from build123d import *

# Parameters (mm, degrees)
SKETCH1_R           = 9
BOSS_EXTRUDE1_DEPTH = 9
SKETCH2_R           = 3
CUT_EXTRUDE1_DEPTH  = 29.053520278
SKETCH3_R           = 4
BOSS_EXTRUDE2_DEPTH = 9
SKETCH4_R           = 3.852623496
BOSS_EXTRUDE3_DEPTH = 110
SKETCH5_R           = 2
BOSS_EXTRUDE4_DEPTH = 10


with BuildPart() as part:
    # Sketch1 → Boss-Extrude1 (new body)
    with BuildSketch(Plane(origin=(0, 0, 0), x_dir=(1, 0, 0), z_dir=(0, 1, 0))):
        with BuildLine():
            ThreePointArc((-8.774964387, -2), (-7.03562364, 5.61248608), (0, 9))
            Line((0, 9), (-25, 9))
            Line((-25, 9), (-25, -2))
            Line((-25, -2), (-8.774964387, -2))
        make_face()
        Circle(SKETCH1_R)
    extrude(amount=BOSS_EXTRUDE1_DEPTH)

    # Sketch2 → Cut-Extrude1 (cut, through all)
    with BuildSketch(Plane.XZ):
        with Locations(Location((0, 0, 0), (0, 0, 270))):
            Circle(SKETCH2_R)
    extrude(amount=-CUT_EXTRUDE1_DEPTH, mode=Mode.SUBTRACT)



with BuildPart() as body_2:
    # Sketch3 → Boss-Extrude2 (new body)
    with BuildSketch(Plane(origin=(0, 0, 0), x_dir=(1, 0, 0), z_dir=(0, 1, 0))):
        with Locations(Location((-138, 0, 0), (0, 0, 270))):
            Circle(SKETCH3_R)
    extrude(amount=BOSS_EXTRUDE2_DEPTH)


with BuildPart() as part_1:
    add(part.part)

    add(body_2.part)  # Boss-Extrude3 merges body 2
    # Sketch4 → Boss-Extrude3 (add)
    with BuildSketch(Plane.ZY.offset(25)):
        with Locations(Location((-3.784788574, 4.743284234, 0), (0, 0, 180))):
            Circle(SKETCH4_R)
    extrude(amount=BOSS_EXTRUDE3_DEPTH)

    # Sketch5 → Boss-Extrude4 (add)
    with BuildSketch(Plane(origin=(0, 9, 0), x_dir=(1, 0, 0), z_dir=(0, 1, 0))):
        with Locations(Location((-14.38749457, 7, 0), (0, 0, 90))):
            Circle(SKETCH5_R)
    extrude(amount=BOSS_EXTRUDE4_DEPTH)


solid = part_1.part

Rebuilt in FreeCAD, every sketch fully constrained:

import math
import FreeCAD as App
import Part
import Sketcher

V = App.Vector

doc = App.newDocument("Part")
body = doc.addObject("PartDesign::Body", "Body")

# Sketch on XZ plane
sketch1 = body.newObject("Sketcher::SketchObject", "Sketch")
sketch1.AttachmentSupport = (doc.getObject("XZ_Plane"), [""])
sketch1.MapMode = "FlatFace"
sketch1.addGeometry([
    Part.LineSegment(V(0, -9, 0), V(-25, -9, 0)),
    Part.LineSegment(V(-25, -9, 0), V(-25, 2, 0)),
    Part.LineSegment(V(-25, 2, 0), V(-8.774964, 2, 0)),
    Part.ArcOfCircle(Part.Circle(V(0, 0, 0), V(0, 0, 1), 9), math.radians(-90), math.radians(167.160412)),
], False)
sketch1.addConstraint([
    Sketcher.Constraint("Coincident", 0, 2, 1, 1),
    Sketcher.Constraint("Coincident", 1, 2, 2, 1),
    Sketcher.Constraint("Coincident", 2, 2, 3, 2),
    Sketcher.Constraint("Tangent", 3, 1, 0, 1),
    Sketcher.Constraint("Horizontal", 0),
    Sketcher.Constraint("Vertical", 1),
    Sketcher.Constraint("Horizontal", 2),
    Sketcher.Constraint("Coincident", 3, 3, -1, 1),
    Sketcher.Constraint("Radius", 3, 9.0),
    Sketcher.Constraint("DistanceX", 0, 2, 0, 1, 25.0),
    Sketcher.Constraint("DistanceY", 1, 1, 1, 2, 11.0),
])
pad1 = body.newObject("PartDesign::Pad", "Pad")
pad1.Profile = sketch1
pad1.Length = 9
pad1.Reversed = True

# Sketch on XZ plane
sketch2 = body.newObject("Sketcher::SketchObject", "Sketch001")
sketch2.AttachmentSupport = (doc.getObject("XZ_Plane"), [""])
sketch2.MapMode = "FlatFace"
sketch2.addGeometry(Part.Circle(V(0, 0, 0), V(0, 0, 1), 3), False)
sketch2.addConstraint([
    Sketcher.Constraint("Coincident", 0, 3, -1, 1),
    Sketcher.Constraint("Diameter", 0, 6.0),
])
pocket1 = body.newObject("PartDesign::Pocket", "Pocket")
pocket1.Profile = sketch2
pocket1.Type = "ThroughAll"
body2 = doc.addObject("PartDesign::Body", "Body001")

# Sketch on XZ plane
sketch3 = body2.newObject("Sketcher::SketchObject", "Sketch002")
sketch3.AttachmentSupport = (doc.getObject("XZ_Plane001"), [""])
sketch3.MapMode = "FlatFace"
sketch3.addGeometry(Part.Circle(V(-138, 0, 0), V(0, 0, 1), 4), False)
sketch3.addConstraint([
    Sketcher.Constraint("PointOnObject", 0, 3, -1),
    Sketcher.Constraint("Diameter", 0, 8.0),
    Sketcher.Constraint("DistanceX", 0, 3, -1, 1, 138.0),
])
pad2 = body2.newObject("PartDesign::Pad", "Pad001")
pad2.Profile = sketch3
pad2.Length = 9
pad2.Reversed = True
body.AllowCompound = True
doc.recompute()

boolean = body.newObject("PartDesign::Boolean", "Boolean")
boolean.Type = "Fuse"
boolean.addObjects([body2])

# Sketch on YZ plane
sketch4 = body.newObject("Sketcher::SketchObject", "Sketch003")
sketch4.AttachmentSupport = (doc.getObject("YZ_Plane"), [""])
sketch4.MapMode = "FlatFace"
sketch4.AttachmentOffset = App.Placement(V(0, 0, -25), App.Rotation())
sketch4.addGeometry(Part.Circle(V(4.743284, -3.784789, 0), V(0, 0, 1), 3.852623), False)
sketch4.addConstraint([
    Sketcher.Constraint("Diameter", 0, 7.705247),
    Sketcher.Constraint("DistanceY", 0, 3, -1, 1, 3.784789),
    Sketcher.Constraint("DistanceX", -1, 1, 0, 3, 4.743284),
])
pad3 = body.newObject("PartDesign::Pad", "Pad002")
pad3.Profile = sketch4
pad3.Length = 110
pad3.Reversed = True

# Sketch on XZ plane
sketch5 = body.newObject("Sketcher::SketchObject", "Sketch004")
sketch5.AttachmentSupport = (doc.getObject("XZ_Plane"), [""])
sketch5.MapMode = "FlatFace"
sketch5.AttachmentOffset = App.Placement(V(0, 0, -9), App.Rotation())
sketch5.addGeometry(Part.Circle(V(-14.387495, -7, 0), V(0, 0, 1), 2), False)
sketch5.addConstraint([
    Sketcher.Constraint("Diameter", 0, 4.0),
    Sketcher.Constraint("DistanceY", 0, 3, -1, 1, 7.0),
    Sketcher.Constraint("DistanceX", 0, 3, -1, 1, 14.387495),
])
pad4 = body.newObject("PartDesign::Pad", "Pad003")
pad4.Profile = sketch5
pad4.Length = 10
pad4.Reversed = True

doc.recompute()
